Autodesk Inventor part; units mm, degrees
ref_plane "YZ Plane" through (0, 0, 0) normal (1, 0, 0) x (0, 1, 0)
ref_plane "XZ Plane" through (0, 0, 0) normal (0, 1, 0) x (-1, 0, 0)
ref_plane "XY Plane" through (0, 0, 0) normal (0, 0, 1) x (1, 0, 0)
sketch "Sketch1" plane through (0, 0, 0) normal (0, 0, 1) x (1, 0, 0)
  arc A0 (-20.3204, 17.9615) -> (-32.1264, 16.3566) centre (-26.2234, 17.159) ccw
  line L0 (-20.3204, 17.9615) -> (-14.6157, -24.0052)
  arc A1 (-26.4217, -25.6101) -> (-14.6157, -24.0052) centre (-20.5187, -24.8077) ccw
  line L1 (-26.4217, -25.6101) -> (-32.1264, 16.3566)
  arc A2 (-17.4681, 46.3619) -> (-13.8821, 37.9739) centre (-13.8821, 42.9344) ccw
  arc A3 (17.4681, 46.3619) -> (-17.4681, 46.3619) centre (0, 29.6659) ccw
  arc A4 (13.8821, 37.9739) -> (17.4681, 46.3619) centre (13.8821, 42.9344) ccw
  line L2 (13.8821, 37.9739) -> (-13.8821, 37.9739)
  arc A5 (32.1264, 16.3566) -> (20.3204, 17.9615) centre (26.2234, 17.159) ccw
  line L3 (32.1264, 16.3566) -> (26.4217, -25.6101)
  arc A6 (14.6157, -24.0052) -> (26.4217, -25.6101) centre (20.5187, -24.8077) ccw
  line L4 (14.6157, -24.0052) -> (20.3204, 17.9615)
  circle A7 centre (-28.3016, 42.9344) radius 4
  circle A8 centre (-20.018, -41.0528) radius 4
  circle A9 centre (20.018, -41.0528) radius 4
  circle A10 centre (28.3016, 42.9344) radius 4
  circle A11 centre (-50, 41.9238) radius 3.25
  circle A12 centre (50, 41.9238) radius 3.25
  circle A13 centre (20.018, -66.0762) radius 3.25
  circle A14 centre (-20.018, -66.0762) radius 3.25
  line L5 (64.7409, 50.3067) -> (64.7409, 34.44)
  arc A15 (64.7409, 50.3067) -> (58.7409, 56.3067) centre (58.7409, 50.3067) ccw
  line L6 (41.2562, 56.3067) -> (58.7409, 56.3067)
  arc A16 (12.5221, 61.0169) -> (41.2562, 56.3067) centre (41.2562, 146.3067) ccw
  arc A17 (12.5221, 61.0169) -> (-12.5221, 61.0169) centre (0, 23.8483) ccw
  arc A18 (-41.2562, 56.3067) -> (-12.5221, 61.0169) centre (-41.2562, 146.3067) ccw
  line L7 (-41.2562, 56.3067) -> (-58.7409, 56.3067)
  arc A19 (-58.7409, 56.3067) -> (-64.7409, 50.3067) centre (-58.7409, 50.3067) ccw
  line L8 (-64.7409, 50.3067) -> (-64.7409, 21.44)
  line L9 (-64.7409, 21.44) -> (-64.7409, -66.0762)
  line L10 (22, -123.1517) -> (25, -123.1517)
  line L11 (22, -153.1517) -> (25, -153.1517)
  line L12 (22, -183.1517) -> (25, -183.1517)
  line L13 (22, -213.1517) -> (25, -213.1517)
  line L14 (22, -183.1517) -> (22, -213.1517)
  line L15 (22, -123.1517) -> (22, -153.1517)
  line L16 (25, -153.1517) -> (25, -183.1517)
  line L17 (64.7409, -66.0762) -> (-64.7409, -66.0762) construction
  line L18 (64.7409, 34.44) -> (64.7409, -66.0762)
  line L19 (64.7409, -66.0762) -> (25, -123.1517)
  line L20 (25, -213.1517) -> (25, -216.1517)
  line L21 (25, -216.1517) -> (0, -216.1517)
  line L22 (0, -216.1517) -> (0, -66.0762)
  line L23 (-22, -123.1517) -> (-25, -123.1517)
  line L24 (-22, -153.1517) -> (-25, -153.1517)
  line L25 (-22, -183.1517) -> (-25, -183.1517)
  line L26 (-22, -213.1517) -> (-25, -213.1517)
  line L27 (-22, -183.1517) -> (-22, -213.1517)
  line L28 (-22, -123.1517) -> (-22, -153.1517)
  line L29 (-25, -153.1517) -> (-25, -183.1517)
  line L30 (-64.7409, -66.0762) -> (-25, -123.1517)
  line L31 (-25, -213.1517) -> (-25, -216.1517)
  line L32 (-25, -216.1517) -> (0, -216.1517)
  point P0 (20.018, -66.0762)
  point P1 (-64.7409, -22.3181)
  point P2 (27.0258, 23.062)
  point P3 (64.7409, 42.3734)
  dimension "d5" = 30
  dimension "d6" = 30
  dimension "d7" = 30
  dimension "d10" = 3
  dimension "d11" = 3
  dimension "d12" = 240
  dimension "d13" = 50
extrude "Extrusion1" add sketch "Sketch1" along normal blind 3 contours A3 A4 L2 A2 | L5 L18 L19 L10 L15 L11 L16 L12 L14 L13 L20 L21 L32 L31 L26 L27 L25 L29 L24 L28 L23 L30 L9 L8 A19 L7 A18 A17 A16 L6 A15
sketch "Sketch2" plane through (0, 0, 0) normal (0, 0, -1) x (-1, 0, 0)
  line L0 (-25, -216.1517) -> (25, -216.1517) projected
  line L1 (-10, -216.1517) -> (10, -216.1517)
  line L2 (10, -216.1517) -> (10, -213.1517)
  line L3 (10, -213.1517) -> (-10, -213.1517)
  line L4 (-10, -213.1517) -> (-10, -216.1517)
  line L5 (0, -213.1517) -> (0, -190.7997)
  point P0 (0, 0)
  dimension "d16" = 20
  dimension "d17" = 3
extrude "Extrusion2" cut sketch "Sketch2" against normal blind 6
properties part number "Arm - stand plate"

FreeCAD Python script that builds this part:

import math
import FreeCAD as App
import Part
import Sketcher
from FreeCAD import Vector
Q = App.Units.Quantity


def add_polygon(sketch, points):
    """Adds a closed chain of lines whose ends are joined by coincident constraints."""
    first, n = sketch.GeometryCount, len(points)
    for a, b in zip(points, points[1:] + points[:1]):
        sketch.addGeometry(Part.LineSegment(App.Vector(*a, 0), App.Vector(*b, 0)), False)
    for i in range(n):
        sketch.addConstraint(Sketcher.Constraint("Coincident", first + i, 2, first + (i + 1) % n, 1))

doc = App.newDocument("Part")
params = doc.addObject("Spreadsheet::Sheet", "Params")
for row, (alias, value) in enumerate([
    ("sketch1_width", "3 mm"),
    ("sketch1_width2", "50 mm"),
    ("sketch1_height", "30 mm"),
    ("sketch1_diameter", "8 mm"),
    ("sketch1_radius", "6 mm"),
    ("pad1_length", "3 mm"),
    ("sketch2_width", "20 mm"),
    ("sketch2_height", "3 mm"),
    ("pocket1_length", "6 mm"),
], start=1):
    params.set(f"A{row}", alias)
    params.set(f"B{row}", "=" + value)
    params.setAlias(f"B{row}", alias)

body = doc.addObject("PartDesign::Body", "Body")

# Sketch on XY plane
sketch1 = body.newObject("Sketcher::SketchObject", "Sketch")
sketch1.AttachmentSupport = (doc.getObject("XY_Plane"), [""])
sketch1.MapMode = "FlatFace"
sketch1.addGeometry([
    Part.ArcOfCircle(Part.Circle(Vector(58.7, 50.3, 0), Vector(0, 0, 1), 6), math.radians(0), math.radians(90)),  # 0
    Part.LineSegment(Vector(58.7, 56.3, 0), Vector(41.3, 56.3, 0)),  # 1
    Part.ArcOfCircle(Part.Circle(Vector(41.3, 146.3, 0), Vector(0, 0, 1), 90), math.radians(-108.62), math.radians(-90)),  # 2
    Part.ArcOfCircle(Part.Circle(Vector(0, 23.8, 0), Vector(0, 0, 1), 39.2), math.radians(71), math.radians(109)),  # 3
    Part.ArcOfCircle(Part.Circle(Vector(-41.3, 146.3, 0), Vector(0, 0, 1), 90), math.radians(-90), math.radians(-71.38)),  # 4
    Part.LineSegment(Vector(-41.3, 56.3, 0), Vector(-58.7, 56.3, 0)),  # 5
    Part.ArcOfCircle(Part.Circle(Vector(-58.7, 50.3, 0), Vector(0, 0, 1), 6), math.radians(90), math.radians(180)),  # 6
    Part.LineSegment(Vector(-64.7, 50.3, 0), Vector(-64.7, -66.1, 0)),  # 7
    Part.LineSegment(Vector(-64.7, -66.1, 0), Vector(-25, -123.2, 0)),  # 8
    Part.LineSegment(Vector(-25, -123.2, 0), Vector(-22, -123.2, 0)),  # 9
    Part.LineSegment(Vector(-22, -123.2, 0), Vector(-22, -153.2, 0)),  # 10
    Part.LineSegment(Vector(-22, -153.2, 0), Vector(-25, -153.2, 0)),  # 11
    Part.LineSegment(Vector(-25, -153.2, 0), Vector(-25, -183.2, 0)),  # 12
    Part.LineSegment(Vector(-25, -183.2, 0), Vector(-22, -183.2, 0)),  # 13
    Part.LineSegment(Vector(-22, -183.2, 0), Vector(-22, -213.2, 0)),  # 14
    Part.LineSegment(Vector(-22, -213.2, 0), Vector(-25, -213.2, 0)),  # 15
    Part.LineSegment(Vector(-25, -213.2, 0), Vector(-25, -216.2, 0)),  # 16
    Part.LineSegment(Vector(-25, -216.2, 0), Vector(25, -216.2, 0)),  # 17
    Part.LineSegment(Vector(25, -216.2, 0), Vector(25, -213.2, 0)),  # 18
    Part.LineSegment(Vector(25, -213.2, 0), Vector(22, -213.2, 0)),  # 19
    Part.LineSegment(Vector(22, -213.2, 0), Vector(22, -183.2, 0)),  # 20
    Part.LineSegment(Vector(22, -183.2, 0), Vector(25, -183.2, 0)),  # 21
    Part.LineSegment(Vector(25, -183.2, 0), Vector(25, -153.2, 0)),  # 22
    Part.LineSegment(Vector(25, -153.2, 0), Vector(22, -153.2, 0)),  # 23
    Part.LineSegment(Vector(22, -153.2, 0), Vector(22, -123.2, 0)),  # 24
    Part.LineSegment(Vector(22, -123.2, 0), Vector(25, -123.2, 0)),  # 25
    Part.LineSegment(Vector(25, -123.2, 0), Vector(64.7, -66.1, 0)),  # 26
    Part.LineSegment(Vector(64.7, -66.1, 0), Vector(64.7, 50.3, 0)),  # 27
    Part.Circle(Vector(-20, -66.1, 0), Vector(0, 0, 1), 3.2),  # 28
    Part.Circle(Vector(-20, -41.1, 0), Vector(0, 0, 1), 4),  # 29
    Part.Circle(Vector(-50, 41.9, 0), Vector(0, 0, 1), 3.2),  # 30
    Part.ArcOfCircle(Part.Circle(Vector(-26.2, 17.2, 0), Vector(0, 0, 1), 6), math.radians(8), math.radians(188)),  # 31
    Part.LineSegment(Vector(-20.3, 18, 0), Vector(-14.6, -24, 0)),  # 32
    Part.ArcOfCircle(Part.Circle(Vector(-20.5, -24.8, 0), Vector(0, 0, 1), 6), math.radians(-172), math.radians(8)),  # 33
    Part.LineSegment(Vector(-26.4, -25.6, 0), Vector(-32.1, 16.4, 0)),  # 34
    Part.Circle(Vector(-28.3, 42.9, 0), Vector(0, 0, 1), 4),  # 35
    Part.ArcOfCircle(Part.Circle(Vector(20.5, -24.8, 0), Vector(0, 0, 1), 6), math.radians(172), math.radians(352)),  # 36
    Part.LineSegment(Vector(14.6, -24, 0), Vector(20.3, 18, 0)),  # 37
    Part.ArcOfCircle(Part.Circle(Vector(26.2, 17.2, 0), Vector(0, 0, 1), 6), math.radians(-8), math.radians(172)),  # 38
    Part.LineSegment(Vector(32.1, 16.4, 0), Vector(26.4, -25.6, 0)),  # 39
    Part.Circle(Vector(28.3, 42.9, 0), Vector(0, 0, 1), 4),  # 40
    Part.Circle(Vector(50, 41.9, 0), Vector(0, 0, 1), 3.2),  # 41
    Part.Circle(Vector(20, -66.1, 0), Vector(0, 0, 1), 3.2),  # 42
    Part.Circle(Vector(20, -41.1, 0), Vector(0, 0, 1), 4),  # 43
], False)
sketch1.addConstraint([
    Sketcher.Constraint("Tangent", 0, 2, 1, 1),
    Sketcher.Constraint("Tangent", 1, 2, 2, 2),
    Sketcher.Constraint("Tangent", 2, 1, 3, 1),
    Sketcher.Constraint("Tangent", 3, 2, 4, 2),
    Sketcher.Constraint("Tangent", 4, 1, 5, 1),
    Sketcher.Constraint("Tangent", 5, 2, 6, 1),
    Sketcher.Constraint("Tangent", 6, 2, 7, 1),
    Sketcher.Constraint("Coincident", 7, 2, 8, 1),
    Sketcher.Constraint("Coincident", 8, 2, 9, 1),
    Sketcher.Constraint("Coincident", 9, 2, 10, 1),
    Sketcher.Constraint("Coincident", 10, 2, 11, 1),
    Sketcher.Constraint("Coincident", 11, 2, 12, 1),
    Sketcher.Constraint("Coincident", 12, 2, 13, 1),
    Sketcher.Constraint("Coincident", 13, 2, 14, 1),
    Sketcher.Constraint("Coincident", 14, 2, 15, 1),
    Sketcher.Constraint("Coincident", 15, 2, 16, 1),
    Sketcher.Constraint("Coincident", 16, 2, 17, 1),
    Sketcher.Constraint("Coincident", 17, 2, 18, 1),
    Sketcher.Constraint("Coincident", 18, 2, 19, 1),
    Sketcher.Constraint("Coincident", 19, 2, 20, 1),
    Sketcher.Constraint("Coincident", 20, 2, 21, 1),
    Sketcher.Constraint("Coincident", 21, 2, 22, 1),
    Sketcher.Constraint("Coincident", 22, 2, 23, 1),
    Sketcher.Constraint("Coincident", 23, 2, 24, 1),
    Sketcher.Constraint("Coincident", 24, 2, 25, 1),
    Sketcher.Constraint("Coincident", 25, 2, 26, 1),
    Sketcher.Constraint("Coincident", 26, 2, 27, 1),
    Sketcher.Constraint("Tangent", 27, 2, 0, 1),
    Sketcher.Constraint("Tangent", 31, 1, 32, 1),
    Sketcher.Constraint("Tangent", 32, 2, 33, 2),
    Sketcher.Constraint("Tangent", 33, 1, 34, 1),
    Sketcher.Constraint("Tangent", 34, 2, 31, 2),
    Sketcher.Constraint("Tangent", 36, 1, 37, 1),
    Sketcher.Constraint("Tangent", 37, 2, 38, 2),
    Sketcher.Constraint("Tangent", 38, 1, 39, 1),
    Sketcher.Constraint("Tangent", 39, 2, 36, 2),
    Sketcher.Constraint("Horizontal", 1),
    Sketcher.Constraint("Horizontal", 5),
    Sketcher.Constraint("Vertical", 7),
    Sketcher.Constraint("Horizontal", 9),
    Sketcher.Constraint("Vertical", 10),
    Sketcher.Constraint("Horizontal", 11),
    Sketcher.Constraint("Vertical", 12),
    Sketcher.Constraint("Horizontal", 13),
    Sketcher.Constraint("Vertical", 14),
    Sketcher.Constraint("Horizontal", 15),
    Sketcher.Constraint("Vertical", 16),
    Sketcher.Constraint("Horizontal", 17),
    Sketcher.Constraint("Vertical", 18),
    Sketcher.Constraint("Horizontal", 19),
    Sketcher.Constraint("Vertical", 20),
    Sketcher.Constraint("Horizontal", 21),
    Sketcher.Constraint("Vertical", 22),
    Sketcher.Constraint("Horizontal", 23),
    Sketcher.Constraint("Vertical", 24),
    Sketcher.Constraint("Horizontal", 25),
    Sketcher.Constraint("Vertical", 27),
    Sketcher.Constraint("Equal", 2, 4),
    Sketcher.Constraint("Equal", 0, 6),
    Sketcher.Constraint("Equal", 28, 30),
    Sketcher.Constraint("Equal", 31, 33),
    Sketcher.Constraint("Equal", 29, 35),
    Sketcher.Constraint("Equal", 33, 36),
    Sketcher.Constraint("Equal", 36, 38),
    Sketcher.Constraint("Equal", 35, 40),
    Sketcher.Constraint("Equal", 30, 41),
    Sketcher.Constraint("Equal", 41, 42),
    Sketcher.Constraint("Equal", 40, 43),
    Sketcher.Constraint("Symmetric", 2, 3, 4, 3, -2),
    Sketcher.Constraint("Symmetric", 33, 3, 36, 3, -2),
    Sketcher.Constraint("Symmetric", 31, 3, 38, 3, -2),
    Sketcher.Constraint("Symmetric", 35, 3, 40, 3, -2),
    Sketcher.Constraint("Symmetric", 30, 3, 41, 3, -2),
    Sketcher.Constraint("Symmetric", 28, 3, 42, 3, -2),
    Sketcher.Constraint("Symmetric", 29, 3, 43, 3, -2),
    Sketcher.Constraint("Symmetric", 15, 2, 18, 2, -2),
    Sketcher.Constraint("Symmetric", 13, 2, 20, 2, -2),
    Sketcher.Constraint("Symmetric", 11, 2, 22, 2, -2),
    Sketcher.Constraint("Symmetric", 9, 2, 24, 2, -2),
    Sketcher.Constraint("Symmetric", 7, 2, 26, 2, -2),
    Sketcher.Constraint("Horizontal", 42, 3, 7, 2),
    Sketcher.Constraint("Vertical", 28, 3, 29, 3),
    Sketcher.Constraint("Vertical", 8, 2, 11, 2),
    Sketcher.Constraint("Vertical", 10, 2, 13, 2),
    Sketcher.Constraint("Vertical", 12, 2, 15, 2),
    Sketcher.Constraint("Vertical", 22, 2, 25, 2),
    Sketcher.Constraint("Equal", 10, 12),
    Sketcher.Constraint("Equal", 12, 14),
    Sketcher.Constraint("Equal", 25, 16),
    Sketcher.Constraint("DistanceX", 9, 1, 9, 2, Q("3 mm")),
    Sketcher.Constraint("DistanceX", 17, 1, 17, 2, Q("50 mm")),
    Sketcher.Constraint("DistanceY", 10, 2, 10, 1, Q("30 mm")),
    Sketcher.Constraint("Diameter", 29, Q("8 mm")),
    Sketcher.Constraint("DistanceX", 30, 3, -1, 1, Q("50 mm")),
    Sketcher.Constraint("Radius", 0, Q("6 mm")),
    Sketcher.Constraint("Radius", 2, Q("90 mm")),
    Sketcher.Constraint("Diameter", 28, Q("6.5 mm")),
    Sketcher.Constraint("Angle", 8, Q("-55.151 deg")),
    Sketcher.Constraint("Angle", 32, Q("-82.259 deg")),
    Sketcher.Constraint("Radius", 3, Q("39.2213 mm")),
    Sketcher.Constraint("Radius", 31, Q("5.9573 mm")),
    Sketcher.Constraint("DistanceY", 7, 2, 7, 1, Q("116.383 mm")),
    Sketcher.Constraint("DistanceY", 33, 1, -1, 1, Q("25.61 mm")),
    Sketcher.Constraint("DistanceX", 1, 2, 1, 1, Q("17.4847 mm")),
    Sketcher.Constraint("DistanceX", -1, 1, 0, 3, Q("58.741 mm")),
    Sketcher.Constraint("DistanceX", 28, 3, -1, 1, Q("20.018 mm")),
    Sketcher.Constraint("DistanceY", -1, 1, 31, 3, Q("17.159 mm")),
    Sketcher.Constraint("DistanceY", -1, 1, 2, 1, Q("61.017 mm")),
    Sketcher.Constraint("DistanceY", 29, 3, 3, 3, Q("64.901 mm")),
    Sketcher.Constraint("DistanceY", 30, 3, 6, 3, Q("8.383 mm")),
    Sketcher.Constraint("DistanceY", 3, 3, 35, 3, Q("19.086 mm")),
    Sketcher.Constraint("DistanceX", 35, 3, 33, 3, Q("7.783 mm")),
    Sketcher.Constraint("DistanceX", 31, 3, 36, 3, Q("46.742 mm")),
])
sketch1.setExpression("Constraints[89]", "Params.sketch1_width")
sketch1.setExpression("Constraints[90]", "Params.sketch1_width2")
sketch1.setExpression("Constraints[91]", "Params.sketch1_height")
sketch1.setExpression("Constraints[92]", "Params.sketch1_diameter")
sketch1.setExpression("Constraints[94]", "Params.sketch1_radius")
pad1 = body.newObject("PartDesign::Pad", "Pad")
pad1.Profile = sketch1
pad1.setExpression("Length", "Params.pad1_length")

# Sketch on XY plane
sketch2 = body.newObject("Sketcher::SketchObject", "Sketch001")
sketch2.AttachmentSupport = (doc.getObject("XY_Plane"), [""])
sketch2.MapMode = "FlatFace"
add_polygon(sketch2, [(10, -213.2), (10, -216.2), (-10, -216.2), (-10, -213.2)])  # lines 0-3
sketch2.addConstraint([
    Sketcher.Constraint("Vertical", 0),
    Sketcher.Constraint("Horizontal", 1),
    Sketcher.Constraint("Vertical", 2),
    Sketcher.Constraint("Horizontal", 3),
    Sketcher.Constraint("DistanceX", 1, 2, 1, 1, Q("20 mm")),
    Sketcher.Constraint("DistanceY", 0, 2, 0, 1, Q("3 mm")),
    Sketcher.Constraint("DistanceX", -1, 1, 0, 2, Q("10 mm")),
    Sketcher.Constraint("DistanceY", 0, 2, -1, 1, Q("216.1517 mm")),
])
sketch2.setExpression("Constraints[8]", "Params.sketch2_width")
sketch2.setExpression("Constraints[9]", "Params.sketch2_height")
pocket1 = body.newObject("PartDesign::Pocket", "Pocket")
pocket1.Profile = sketch2
pocket1.setExpression("Length", "Params.pocket1_length")
pocket1.Reversed = True

doc.recompute()
